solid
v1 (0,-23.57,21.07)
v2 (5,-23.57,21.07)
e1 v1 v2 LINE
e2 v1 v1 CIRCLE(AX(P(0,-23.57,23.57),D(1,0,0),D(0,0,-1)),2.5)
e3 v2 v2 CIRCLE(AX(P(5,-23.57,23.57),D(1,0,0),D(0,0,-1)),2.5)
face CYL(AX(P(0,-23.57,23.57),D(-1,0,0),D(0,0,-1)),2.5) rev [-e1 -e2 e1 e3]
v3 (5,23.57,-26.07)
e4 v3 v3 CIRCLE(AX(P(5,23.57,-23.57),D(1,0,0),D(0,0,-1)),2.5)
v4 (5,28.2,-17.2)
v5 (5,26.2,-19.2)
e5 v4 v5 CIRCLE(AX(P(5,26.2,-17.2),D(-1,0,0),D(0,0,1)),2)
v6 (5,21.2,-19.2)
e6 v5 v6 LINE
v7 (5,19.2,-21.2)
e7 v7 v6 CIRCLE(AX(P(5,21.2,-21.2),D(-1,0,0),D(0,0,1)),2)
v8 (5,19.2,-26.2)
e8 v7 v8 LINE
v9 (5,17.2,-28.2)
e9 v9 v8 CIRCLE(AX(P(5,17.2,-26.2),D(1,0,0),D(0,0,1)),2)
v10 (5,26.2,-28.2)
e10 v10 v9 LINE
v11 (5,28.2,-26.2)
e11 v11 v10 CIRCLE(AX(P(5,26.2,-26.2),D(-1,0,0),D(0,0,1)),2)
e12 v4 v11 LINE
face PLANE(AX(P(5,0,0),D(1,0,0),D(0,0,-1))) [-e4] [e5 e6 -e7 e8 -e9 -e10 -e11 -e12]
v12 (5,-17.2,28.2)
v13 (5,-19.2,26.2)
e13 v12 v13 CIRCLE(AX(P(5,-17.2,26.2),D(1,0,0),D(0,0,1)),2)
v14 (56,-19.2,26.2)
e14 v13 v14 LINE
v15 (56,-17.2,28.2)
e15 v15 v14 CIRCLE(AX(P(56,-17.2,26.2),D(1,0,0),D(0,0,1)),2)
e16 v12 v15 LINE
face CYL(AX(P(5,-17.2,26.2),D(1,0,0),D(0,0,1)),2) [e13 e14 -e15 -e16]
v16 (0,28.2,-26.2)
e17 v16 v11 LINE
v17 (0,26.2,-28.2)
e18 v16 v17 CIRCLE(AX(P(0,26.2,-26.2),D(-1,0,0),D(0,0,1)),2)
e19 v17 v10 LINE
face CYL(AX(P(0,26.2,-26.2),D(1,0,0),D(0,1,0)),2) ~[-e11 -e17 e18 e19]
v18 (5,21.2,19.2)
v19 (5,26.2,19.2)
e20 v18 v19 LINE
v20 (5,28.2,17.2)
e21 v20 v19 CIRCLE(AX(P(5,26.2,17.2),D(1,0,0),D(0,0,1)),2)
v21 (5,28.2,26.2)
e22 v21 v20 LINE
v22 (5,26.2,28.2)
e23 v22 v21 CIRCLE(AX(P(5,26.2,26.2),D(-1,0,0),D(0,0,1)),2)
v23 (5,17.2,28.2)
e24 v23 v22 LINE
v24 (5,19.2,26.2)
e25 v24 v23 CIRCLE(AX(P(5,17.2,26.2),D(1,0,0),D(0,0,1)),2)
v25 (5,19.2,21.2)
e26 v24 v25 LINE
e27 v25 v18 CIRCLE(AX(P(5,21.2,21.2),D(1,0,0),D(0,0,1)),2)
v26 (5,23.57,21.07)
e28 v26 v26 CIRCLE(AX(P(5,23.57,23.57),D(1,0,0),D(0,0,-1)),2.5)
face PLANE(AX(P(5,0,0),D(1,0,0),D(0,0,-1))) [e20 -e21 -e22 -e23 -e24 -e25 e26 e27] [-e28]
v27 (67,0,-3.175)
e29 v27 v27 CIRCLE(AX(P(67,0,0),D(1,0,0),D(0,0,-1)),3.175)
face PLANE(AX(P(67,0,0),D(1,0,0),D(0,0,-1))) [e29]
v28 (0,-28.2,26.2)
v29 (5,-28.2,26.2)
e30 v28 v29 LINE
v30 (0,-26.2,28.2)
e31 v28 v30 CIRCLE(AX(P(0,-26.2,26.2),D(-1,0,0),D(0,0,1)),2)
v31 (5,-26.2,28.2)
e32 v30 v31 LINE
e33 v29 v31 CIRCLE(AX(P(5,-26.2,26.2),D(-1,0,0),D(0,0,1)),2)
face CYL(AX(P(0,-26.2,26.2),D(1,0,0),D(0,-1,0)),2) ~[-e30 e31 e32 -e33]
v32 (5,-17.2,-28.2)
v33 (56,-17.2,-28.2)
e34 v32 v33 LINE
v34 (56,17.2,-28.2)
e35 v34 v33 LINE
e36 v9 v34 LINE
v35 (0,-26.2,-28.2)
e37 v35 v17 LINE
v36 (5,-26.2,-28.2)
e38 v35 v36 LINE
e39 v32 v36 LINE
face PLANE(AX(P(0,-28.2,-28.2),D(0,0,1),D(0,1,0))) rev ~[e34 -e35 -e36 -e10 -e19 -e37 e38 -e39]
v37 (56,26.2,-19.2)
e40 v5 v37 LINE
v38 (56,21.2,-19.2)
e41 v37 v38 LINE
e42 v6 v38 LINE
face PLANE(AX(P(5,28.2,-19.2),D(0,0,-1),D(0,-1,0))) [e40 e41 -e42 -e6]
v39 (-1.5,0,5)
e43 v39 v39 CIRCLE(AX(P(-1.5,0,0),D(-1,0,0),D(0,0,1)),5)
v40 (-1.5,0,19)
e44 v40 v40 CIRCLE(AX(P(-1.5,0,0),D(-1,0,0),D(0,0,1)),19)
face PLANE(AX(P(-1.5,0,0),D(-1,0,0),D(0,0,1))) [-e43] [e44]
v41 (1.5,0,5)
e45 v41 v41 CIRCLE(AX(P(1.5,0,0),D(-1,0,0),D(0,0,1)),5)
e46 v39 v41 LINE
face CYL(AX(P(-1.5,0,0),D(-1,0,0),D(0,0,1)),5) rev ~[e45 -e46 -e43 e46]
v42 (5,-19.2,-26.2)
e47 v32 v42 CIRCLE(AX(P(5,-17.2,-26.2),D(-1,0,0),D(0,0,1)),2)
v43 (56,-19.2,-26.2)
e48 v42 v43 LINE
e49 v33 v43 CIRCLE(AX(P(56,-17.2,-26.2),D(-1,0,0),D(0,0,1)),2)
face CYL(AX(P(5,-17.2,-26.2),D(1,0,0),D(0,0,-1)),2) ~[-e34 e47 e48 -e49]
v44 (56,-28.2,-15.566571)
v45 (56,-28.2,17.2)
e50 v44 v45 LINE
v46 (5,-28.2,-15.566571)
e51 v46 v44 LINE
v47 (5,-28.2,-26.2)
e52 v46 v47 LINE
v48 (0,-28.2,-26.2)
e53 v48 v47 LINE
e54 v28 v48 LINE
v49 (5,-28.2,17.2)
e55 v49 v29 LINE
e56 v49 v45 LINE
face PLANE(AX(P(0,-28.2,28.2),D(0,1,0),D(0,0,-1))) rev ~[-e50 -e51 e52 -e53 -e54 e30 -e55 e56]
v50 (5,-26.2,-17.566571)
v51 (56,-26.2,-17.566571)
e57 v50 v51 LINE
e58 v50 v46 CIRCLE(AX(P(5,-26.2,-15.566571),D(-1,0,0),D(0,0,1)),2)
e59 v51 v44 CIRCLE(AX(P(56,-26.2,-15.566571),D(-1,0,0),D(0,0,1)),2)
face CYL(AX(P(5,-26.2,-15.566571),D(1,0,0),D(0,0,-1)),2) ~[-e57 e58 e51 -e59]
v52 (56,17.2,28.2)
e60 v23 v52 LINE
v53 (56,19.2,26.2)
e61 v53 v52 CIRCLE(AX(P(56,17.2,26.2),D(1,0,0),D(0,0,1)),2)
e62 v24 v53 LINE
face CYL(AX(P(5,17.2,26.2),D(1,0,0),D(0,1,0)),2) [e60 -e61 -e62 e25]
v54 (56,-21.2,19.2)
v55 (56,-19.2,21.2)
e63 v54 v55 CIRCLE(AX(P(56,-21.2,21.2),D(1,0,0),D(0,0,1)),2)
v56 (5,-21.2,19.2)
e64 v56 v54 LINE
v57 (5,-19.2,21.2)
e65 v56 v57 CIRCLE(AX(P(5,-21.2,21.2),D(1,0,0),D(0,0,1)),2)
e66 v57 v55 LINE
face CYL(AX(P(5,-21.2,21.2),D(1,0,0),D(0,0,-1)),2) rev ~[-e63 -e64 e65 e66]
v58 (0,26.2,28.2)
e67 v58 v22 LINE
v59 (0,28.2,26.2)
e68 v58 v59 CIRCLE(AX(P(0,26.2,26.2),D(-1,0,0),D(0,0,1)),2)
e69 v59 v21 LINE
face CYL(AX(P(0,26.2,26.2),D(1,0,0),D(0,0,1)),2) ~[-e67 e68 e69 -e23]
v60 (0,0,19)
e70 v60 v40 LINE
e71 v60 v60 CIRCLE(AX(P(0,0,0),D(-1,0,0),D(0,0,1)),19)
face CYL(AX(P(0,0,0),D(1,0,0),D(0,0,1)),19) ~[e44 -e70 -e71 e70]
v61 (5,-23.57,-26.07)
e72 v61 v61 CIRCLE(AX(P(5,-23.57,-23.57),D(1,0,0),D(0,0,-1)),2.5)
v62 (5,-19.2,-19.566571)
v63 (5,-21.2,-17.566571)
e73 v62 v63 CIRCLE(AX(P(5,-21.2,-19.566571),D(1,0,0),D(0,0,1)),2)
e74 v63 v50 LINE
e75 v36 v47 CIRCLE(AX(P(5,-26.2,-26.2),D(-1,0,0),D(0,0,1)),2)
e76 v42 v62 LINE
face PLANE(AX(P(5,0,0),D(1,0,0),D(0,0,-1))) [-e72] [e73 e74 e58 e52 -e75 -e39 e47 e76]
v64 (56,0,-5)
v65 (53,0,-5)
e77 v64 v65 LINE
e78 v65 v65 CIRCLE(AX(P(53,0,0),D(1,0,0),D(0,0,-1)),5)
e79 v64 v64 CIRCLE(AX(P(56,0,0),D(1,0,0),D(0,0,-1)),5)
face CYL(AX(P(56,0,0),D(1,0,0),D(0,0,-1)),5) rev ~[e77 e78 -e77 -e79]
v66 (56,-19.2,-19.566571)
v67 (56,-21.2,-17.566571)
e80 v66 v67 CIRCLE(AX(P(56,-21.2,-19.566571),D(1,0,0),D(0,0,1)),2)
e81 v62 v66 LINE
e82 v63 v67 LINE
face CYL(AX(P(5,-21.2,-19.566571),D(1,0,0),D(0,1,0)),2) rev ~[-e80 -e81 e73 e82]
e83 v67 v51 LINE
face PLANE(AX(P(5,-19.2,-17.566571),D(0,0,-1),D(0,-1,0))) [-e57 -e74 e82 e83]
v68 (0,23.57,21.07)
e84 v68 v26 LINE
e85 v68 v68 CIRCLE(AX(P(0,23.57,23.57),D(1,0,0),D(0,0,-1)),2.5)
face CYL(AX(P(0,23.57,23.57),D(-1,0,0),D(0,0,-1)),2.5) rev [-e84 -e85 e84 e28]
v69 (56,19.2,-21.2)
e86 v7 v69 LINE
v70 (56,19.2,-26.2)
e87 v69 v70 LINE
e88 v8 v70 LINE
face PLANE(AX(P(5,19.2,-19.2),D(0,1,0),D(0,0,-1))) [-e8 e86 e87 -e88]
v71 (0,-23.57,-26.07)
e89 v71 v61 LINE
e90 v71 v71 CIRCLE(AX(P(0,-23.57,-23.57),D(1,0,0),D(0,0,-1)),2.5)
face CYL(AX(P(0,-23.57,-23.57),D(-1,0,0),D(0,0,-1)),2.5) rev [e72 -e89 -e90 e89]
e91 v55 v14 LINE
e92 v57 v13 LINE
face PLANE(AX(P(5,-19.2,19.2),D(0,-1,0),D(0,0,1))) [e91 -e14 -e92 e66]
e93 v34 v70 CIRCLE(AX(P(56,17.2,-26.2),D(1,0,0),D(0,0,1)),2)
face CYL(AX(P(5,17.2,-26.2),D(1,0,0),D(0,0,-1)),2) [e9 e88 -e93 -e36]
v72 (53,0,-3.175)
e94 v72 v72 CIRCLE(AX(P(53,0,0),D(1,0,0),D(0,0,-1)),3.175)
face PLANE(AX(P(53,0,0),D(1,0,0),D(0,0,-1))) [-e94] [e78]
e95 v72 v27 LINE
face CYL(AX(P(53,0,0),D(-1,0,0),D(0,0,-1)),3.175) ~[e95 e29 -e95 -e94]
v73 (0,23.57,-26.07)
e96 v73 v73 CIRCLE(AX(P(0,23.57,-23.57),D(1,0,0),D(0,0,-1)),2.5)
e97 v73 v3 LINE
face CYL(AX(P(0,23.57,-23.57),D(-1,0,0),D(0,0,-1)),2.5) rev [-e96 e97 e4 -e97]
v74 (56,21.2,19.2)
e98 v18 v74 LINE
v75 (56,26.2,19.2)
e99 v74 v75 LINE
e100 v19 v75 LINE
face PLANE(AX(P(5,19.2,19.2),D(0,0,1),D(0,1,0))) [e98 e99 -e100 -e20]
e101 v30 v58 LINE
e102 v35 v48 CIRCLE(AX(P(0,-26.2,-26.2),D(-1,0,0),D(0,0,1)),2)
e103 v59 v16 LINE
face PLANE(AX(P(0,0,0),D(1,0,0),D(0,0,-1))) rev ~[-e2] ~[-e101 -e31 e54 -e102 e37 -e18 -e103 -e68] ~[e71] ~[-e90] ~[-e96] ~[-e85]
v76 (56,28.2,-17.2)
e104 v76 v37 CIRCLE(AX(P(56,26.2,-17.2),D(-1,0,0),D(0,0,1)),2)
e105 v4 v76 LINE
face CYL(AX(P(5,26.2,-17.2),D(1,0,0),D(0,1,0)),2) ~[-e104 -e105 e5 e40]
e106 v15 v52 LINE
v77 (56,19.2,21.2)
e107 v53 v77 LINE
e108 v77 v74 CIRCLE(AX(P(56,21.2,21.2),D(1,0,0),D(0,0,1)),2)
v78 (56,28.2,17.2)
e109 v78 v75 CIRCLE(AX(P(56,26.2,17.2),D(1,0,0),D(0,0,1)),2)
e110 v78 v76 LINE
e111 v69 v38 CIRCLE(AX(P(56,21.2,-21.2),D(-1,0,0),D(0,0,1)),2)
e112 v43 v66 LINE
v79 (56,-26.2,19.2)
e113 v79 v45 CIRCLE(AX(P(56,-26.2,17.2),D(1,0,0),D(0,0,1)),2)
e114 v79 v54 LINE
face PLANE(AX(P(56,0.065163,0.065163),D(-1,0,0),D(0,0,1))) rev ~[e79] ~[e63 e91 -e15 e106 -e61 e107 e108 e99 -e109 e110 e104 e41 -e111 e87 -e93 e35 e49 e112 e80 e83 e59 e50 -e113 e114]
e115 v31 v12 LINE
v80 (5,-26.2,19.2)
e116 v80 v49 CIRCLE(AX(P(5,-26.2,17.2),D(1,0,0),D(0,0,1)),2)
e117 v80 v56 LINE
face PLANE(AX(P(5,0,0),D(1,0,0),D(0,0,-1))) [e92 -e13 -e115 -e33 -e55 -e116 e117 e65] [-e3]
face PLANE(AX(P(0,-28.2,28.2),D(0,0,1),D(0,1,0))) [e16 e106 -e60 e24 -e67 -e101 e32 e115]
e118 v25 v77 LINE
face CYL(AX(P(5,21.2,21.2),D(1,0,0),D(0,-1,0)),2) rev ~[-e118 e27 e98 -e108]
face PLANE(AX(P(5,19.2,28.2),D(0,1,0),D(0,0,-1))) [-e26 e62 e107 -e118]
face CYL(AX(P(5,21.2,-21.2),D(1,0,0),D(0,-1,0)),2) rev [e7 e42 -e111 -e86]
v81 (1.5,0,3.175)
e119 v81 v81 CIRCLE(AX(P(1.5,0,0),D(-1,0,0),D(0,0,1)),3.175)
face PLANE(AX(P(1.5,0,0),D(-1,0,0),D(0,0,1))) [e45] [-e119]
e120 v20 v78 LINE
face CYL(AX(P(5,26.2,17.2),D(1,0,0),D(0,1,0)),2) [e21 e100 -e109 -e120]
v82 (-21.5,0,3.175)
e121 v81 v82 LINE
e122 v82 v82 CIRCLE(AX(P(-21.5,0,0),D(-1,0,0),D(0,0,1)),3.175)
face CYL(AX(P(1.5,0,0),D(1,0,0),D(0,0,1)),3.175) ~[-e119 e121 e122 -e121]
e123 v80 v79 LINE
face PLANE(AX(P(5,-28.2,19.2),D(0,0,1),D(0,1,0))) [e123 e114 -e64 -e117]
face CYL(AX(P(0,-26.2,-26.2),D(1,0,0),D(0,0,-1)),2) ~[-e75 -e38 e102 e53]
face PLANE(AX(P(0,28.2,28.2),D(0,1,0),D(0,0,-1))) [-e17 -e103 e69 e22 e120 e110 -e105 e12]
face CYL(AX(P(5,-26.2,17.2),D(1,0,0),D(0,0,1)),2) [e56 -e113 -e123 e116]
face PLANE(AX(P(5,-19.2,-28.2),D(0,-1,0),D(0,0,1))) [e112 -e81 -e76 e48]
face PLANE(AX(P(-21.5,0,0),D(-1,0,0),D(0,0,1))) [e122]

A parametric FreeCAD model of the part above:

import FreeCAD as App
import Part
import Sketcher
from FreeCAD import Vector


def edges_at(feature, points):
    """Names of the edges that pass closest to the given points."""
    edges = feature.Shape.Edges
    near = lambda p: min(range(len(edges)), key=lambda i: edges[i].distToShape(Part.Vertex(*p))[0])
    return sorted({f"Edge{near(p) + 1}" for p in points})


def add_polygon(sketch, points):
    """Adds a closed chain of lines whose ends are joined by coincident constraints."""
    first, n = sketch.GeometryCount, len(points)
    for a, b in zip(points, points[1:] + points[:1]):
        sketch.addGeometry(Part.LineSegment(App.Vector(*a, 0), App.Vector(*b, 0)), False)
    for i in range(n):
        sketch.addConstraint(Sketcher.Constraint("Coincident", first + i, 2, first + (i + 1) % n, 1))

doc = App.newDocument("Part")
body = doc.addObject("PartDesign::Body", "Body")

# Sketch on YZ plane
sketch1 = body.newObject("Sketcher::SketchObject", "Sketch")
sketch1.AttachmentSupport = (doc.getObject("YZ_Plane"), [""])
sketch1.MapMode = "FlatFace"
add_polygon(sketch1, [(28.2, 28.2), (-28.2, 28.2), (-28.2, -28.2), (28.2, -28.2)])  # lines 0-3
sketch1.addGeometry(Part.Circle(Vector(-23.57, 23.57, 0), Vector(0, 0, 1), 2.5), False)  # 4
sketch1.addGeometry(Part.Circle(Vector(-23.57, -23.57, 0), Vector(0, 0, 1), 2.5), False)  # 5
sketch1.addGeometry(Part.Circle(Vector(23.57, 23.57, 0), Vector(0, 0, 1), 2.5), False)  # 6
sketch1.addGeometry(Part.Circle(Vector(23.57, -23.57, 0), Vector(0, 0, 1), 2.5), False)  # 7
sketch1.addConstraint(Sketcher.Constraint("Horizontal", 0))
sketch1.addConstraint(Sketcher.Constraint("Vertical", 1))
sketch1.addConstraint(Sketcher.Constraint("Horizontal", 2))
sketch1.addConstraint(Sketcher.Constraint("Vertical", 3))
sketch1.addConstraint(Sketcher.Constraint("Equal", 4, 5))
sketch1.addConstraint(Sketcher.Constraint("Equal", 5, 6))
sketch1.addConstraint(Sketcher.Constraint("Equal", 6, 7))
sketch1.addConstraint(Sketcher.Constraint("Symmetric", 5, 3, 6, 3, -1, 1))
sketch1.addConstraint(Sketcher.Constraint("Symmetric", 4, 3, 7, 3, -1, 1))
sketch1.addConstraint(Sketcher.Constraint("Symmetric", 0, 2, 2, 2, -1, 1))
sketch1.addConstraint(Sketcher.Constraint("Symmetric", 4, 3, 6, 3, -2))
sketch1.addConstraint(Sketcher.Constraint("Equal", 2, 1))
sketch1.addConstraint(Sketcher.Constraint("Diameter", 4, 5.0))
sketch1.addConstraint(Sketcher.Constraint("DistanceX", 0, 2, 0, 1, 56.4))
sketch1.addConstraint(Sketcher.Constraint("DistanceX", 4, 3, -1, 1, 23.57))
sketch1.addConstraint(Sketcher.Constraint("DistanceY", -1, 1, 4, 3, 23.57))
pad1 = body.newObject("PartDesign::Pad", "Pad")
pad1.Profile = sketch1
pad1.Length = 5

# Sketch on YZ plane
sketch2 = body.newObject("Sketcher::SketchObject", "Sketch001")
sketch2.AttachmentSupport = (doc.getObject("YZ_Plane"), [""])
sketch2.MapMode = "FlatFace"
sketch2.AttachmentOffset = App.Placement(Vector(0, 0, 5), App.Rotation())
add_polygon(sketch2, [(19.2, 19.2), (19.2, 28.2), (-19.2, 28.2), (-19.2, 19.2), (-28.2, 19.2), (-28.2, -17.566571), (-19.2, -17.566571), (-19.2, -28.2), (19.2, -28.2), (19.2, -19.2), (28.2, -19.2), (28.2, 19.2)])  # lines 0-11
sketch2.addConstraint(Sketcher.Constraint("Vertical", 0))
sketch2.addConstraint(Sketcher.Constraint("Horizontal", 1))
sketch2.addConstraint(Sketcher.Constraint("Vertical", 2))
sketch2.addConstraint(Sketcher.Constraint("Horizontal", 3))
sketch2.addConstraint(Sketcher.Constraint("Vertical", 4))
sketch2.addConstraint(Sketcher.Constraint("Horizontal", 5))
sketch2.addConstraint(Sketcher.Constraint("Vertical", 6))
sketch2.addConstraint(Sketcher.Constraint("Horizontal", 7))
sketch2.addConstraint(Sketcher.Constraint("Vertical", 8))
sketch2.addConstraint(Sketcher.Constraint("Horizontal", 9))
sketch2.addConstraint(Sketcher.Constraint("Vertical", 10))
sketch2.addConstraint(Sketcher.Constraint("Horizontal", 11))
sketch2.addConstraint(Sketcher.Constraint("Symmetric", 0, 2, 6, 2, -1, 1))
sketch2.addConstraint(Sketcher.Constraint("Symmetric", 2, 2, 8, 2, -1, 1))
sketch2.addConstraint(Sketcher.Constraint("Symmetric", 3, 2, 10, 2, -2))
sketch2.addConstraint(Sketcher.Constraint("Vertical", 2, 2, 5, 2))
sketch2.addConstraint(Sketcher.Constraint("Equal", 11, 0))
sketch2.addConstraint(Sketcher.Constraint("Equal", 7, 10))
sketch2.addConstraint(Sketcher.Constraint("DistanceX", 3, 2, 3, 1, 9.0))
sketch2.addConstraint(Sketcher.Constraint("DistanceX", 1, 2, 1, 1, 38.4))
sketch2.addConstraint(Sketcher.Constraint("DistanceY", 4, 2, 4, 1, 36.766571))
pad2 = body.newObject("PartDesign::Pad", "Pad001")
pad2.Profile = sketch2
pad2.Length = 51

# Sketch on YZ plane
sketch3 = body.newObject("Sketcher::SketchObject", "Sketch002")
sketch3.AttachmentSupport = (doc.getObject("YZ_Plane"), [""])
sketch3.MapMode = "FlatFace"
sketch3.AttachmentOffset = App.Placement(Vector(0, 0, 56), App.Rotation())
sketch3.addGeometry(Part.Circle(Vector(0, 0, 0), Vector(0, 0, 1), 5), False)
sketch3.addConstraint(Sketcher.Constraint("Coincident", 0, 3, -1, 1))
sketch3.addConstraint(Sketcher.Constraint("Diameter", 0, 10.0))
pocket1 = body.newObject("PartDesign::Pocket", "Pocket")
pocket1.Profile = sketch3
pocket1.Length = 3

# Sketch on YZ plane
sketch4 = body.newObject("Sketcher::SketchObject", "Sketch003")
sketch4.AttachmentSupport = (doc.getObject("YZ_Plane"), [""])
sketch4.MapMode = "FlatFace"
sketch4.AttachmentOffset = App.Placement(Vector(0, 0, 53), App.Rotation())
sketch4.addGeometry(Part.Circle(Vector(0, 0, 0), Vector(0, 0, 1), 3.175), False)
sketch4.addConstraint(Sketcher.Constraint("Coincident", 0, 3, -1, 1))
sketch4.addConstraint(Sketcher.Constraint("Diameter", 0, 6.35))
pad3 = body.newObject("PartDesign::Pad", "Pad002")
pad3.Profile = sketch4
pad3.Length = 14

# Sketch on YZ plane
sketch5 = body.newObject("Sketcher::SketchObject", "Sketch004")
sketch5.AttachmentSupport = (doc.getObject("YZ_Plane"), [""])
sketch5.MapMode = "FlatFace"
sketch5.addGeometry(Part.Circle(Vector(0, 0, 0), Vector(0, 0, 1), 19), False)
sketch5.addConstraint(Sketcher.Constraint("Coincident", 0, 3, -1, 1))
sketch5.addConstraint(Sketcher.Constraint("Diameter", 0, 38.0))
pad4 = body.newObject("PartDesign::Pad", "Pad003")
pad4.Profile = sketch5
pad4.Length = 1.5
pad4.Reversed = True

# Sketch on YZ plane
sketch6 = body.newObject("Sketcher::SketchObject", "Sketch005")
sketch6.AttachmentSupport = (doc.getObject("YZ_Plane"), [""])
sketch6.MapMode = "FlatFace"
sketch6.AttachmentOffset = App.Placement(Vector(0, 0, -1.5), App.Rotation())
sketch6.addGeometry(Part.Circle(Vector(0, 0, 0), Vector(0, 0, 1), 5), False)
sketch6.addConstraint(Sketcher.Constraint("Coincident", 0, 3, -1, 1))
sketch6.addConstraint(Sketcher.Constraint("Diameter", 0, 10.0))
pocket2 = body.newObject("PartDesign::Pocket", "Pocket001")
pocket2.Profile = sketch6
pocket2.Length = 3
pocket2.Reversed = True

# Sketch on YZ plane
sketch7 = body.newObject("Sketcher::SketchObject", "Sketch006")
sketch7.AttachmentSupport = (doc.getObject("YZ_Plane"), [""])
sketch7.MapMode = "FlatFace"
sketch7.AttachmentOffset = App.Placement(Vector(0, 0, 1.5), App.Rotation())
sketch7.addGeometry(Part.Circle(Vector(0, 0, 0), Vector(0, 0, 1), 3.175), False)
sketch7.addConstraint(Sketcher.Constraint("Coincident", 0, 3, -1, 1))
sketch7.addConstraint(Sketcher.Constraint("Diameter", 0, 6.35))
pad5 = body.newObject("PartDesign::Pad", "Pad004")
pad5.Profile = sketch7
pad5.Length = 23
pad5.Reversed = True
doc.recompute()

fillet = body.newObject("PartDesign::Fillet", "Fillet")
fillet.Base = (pad5, edges_at(pad5, [(2.5, 28.2, 28.2)]))
fillet.Radius = 2
doc.recompute()

fillet2 = body.newObject("PartDesign::Fillet", "Fillet001")
fillet2.Base = (fillet, edges_at(fillet, [(2.5, 28.2, -28.2)]))
fillet2.Radius = 2
doc.recompute()

fillet3 = body.newObject("PartDesign::Fillet", "Fillet002")
fillet3.Base = (fillet2, edges_at(fillet2, [(2.5, -28.2, -28.2)]))
fillet3.Radius = 2
doc.recompute()

fillet4 = body.newObject("PartDesign::Fillet", "Fillet003")
fillet4.Base = (fillet3, edges_at(fillet3, [(2.5, -28.2, 28.2)]))
fillet4.Radius = 2
doc.recompute()

fillet5 = body.newObject("PartDesign::Fillet", "Fillet004")
fillet5.Base = (fillet4, edges_at(fillet4, [(30.5, 28.2, -19.2)]))
fillet5.Radius = 2
doc.recompute()

fillet6 = body.newObject("PartDesign::Fillet", "Fillet005")
fillet6.Base = (fillet5, edges_at(fillet5, [(30.5, 19.2, -28.2)]))
fillet6.Radius = 2
doc.recompute()

fillet7 = body.newObject("PartDesign::Fillet", "Fillet006")
fillet7.Base = (fillet6, edges_at(fillet6, [(30.5, -19.2, -28.2)]))
fillet7.Radius = 2
doc.recompute()

fillet8 = body.newObject("PartDesign::Fillet", "Fillet007")
fillet8.Base = (fillet7, edges_at(fillet7, [(30.5, -28.2, -17.567)]))
fillet8.Radius = 2
doc.recompute()

fillet9 = body.newObject("PartDesign::Fillet", "Fillet008")
fillet9.Base = (fillet8, edges_at(fillet8, [(30.5, -28.2, 19.2)]))
fillet9.Radius = 2
doc.recompute()

fillet10 = body.newObject("PartDesign::Fillet", "Fillet009")
fillet10.Base = (fillet9, edges_at(fillet9, [(30.5, -19.2, 28.2)]))
fillet10.Radius = 2
doc.recompute()

fillet11 = body.newObject("PartDesign::Fillet", "Fillet010")
fillet11.Base = (fillet10, edges_at(fillet10, [(30.5, 19.2, 28.2)]))
fillet11.Radius = 2
doc.recompute()

fillet12 = body.newObject("PartDesign::Fillet", "Fillet011")
fillet12.Base = (fillet11, edges_at(fillet11, [(30.5, 28.2, 19.2)]))
fillet12.Radius = 2
doc.recompute()

fillet13 = body.newObject("PartDesign::Fillet", "Fillet012")
fillet13.Base = (fillet12, edges_at(fillet12, [(30.5, 19.2, -19.2)]))
fillet13.Radius = 2
doc.recompute()

fillet14 = body.newObject("PartDesign::Fillet", "Fillet013")
fillet14.Base = (fillet13, edges_at(fillet13, [(30.5, -19.2, -17.567)]))
fillet14.Radius = 2
doc.recompute()

fillet15 = body.newObject("PartDesign::Fillet", "Fillet014")
fillet15.Base = (fillet14, edges_at(fillet14, [(30.5, -19.2, 19.2)]))
fillet15.Radius = 2
doc.recompute()

fillet16 = body.newObject("PartDesign::Fillet", "Fillet015")
fillet16.Base = (fillet15, edges_at(fillet15, [(30.5, 19.2, 19.2)]))
fillet16.Radius = 2

doc.recompute()
